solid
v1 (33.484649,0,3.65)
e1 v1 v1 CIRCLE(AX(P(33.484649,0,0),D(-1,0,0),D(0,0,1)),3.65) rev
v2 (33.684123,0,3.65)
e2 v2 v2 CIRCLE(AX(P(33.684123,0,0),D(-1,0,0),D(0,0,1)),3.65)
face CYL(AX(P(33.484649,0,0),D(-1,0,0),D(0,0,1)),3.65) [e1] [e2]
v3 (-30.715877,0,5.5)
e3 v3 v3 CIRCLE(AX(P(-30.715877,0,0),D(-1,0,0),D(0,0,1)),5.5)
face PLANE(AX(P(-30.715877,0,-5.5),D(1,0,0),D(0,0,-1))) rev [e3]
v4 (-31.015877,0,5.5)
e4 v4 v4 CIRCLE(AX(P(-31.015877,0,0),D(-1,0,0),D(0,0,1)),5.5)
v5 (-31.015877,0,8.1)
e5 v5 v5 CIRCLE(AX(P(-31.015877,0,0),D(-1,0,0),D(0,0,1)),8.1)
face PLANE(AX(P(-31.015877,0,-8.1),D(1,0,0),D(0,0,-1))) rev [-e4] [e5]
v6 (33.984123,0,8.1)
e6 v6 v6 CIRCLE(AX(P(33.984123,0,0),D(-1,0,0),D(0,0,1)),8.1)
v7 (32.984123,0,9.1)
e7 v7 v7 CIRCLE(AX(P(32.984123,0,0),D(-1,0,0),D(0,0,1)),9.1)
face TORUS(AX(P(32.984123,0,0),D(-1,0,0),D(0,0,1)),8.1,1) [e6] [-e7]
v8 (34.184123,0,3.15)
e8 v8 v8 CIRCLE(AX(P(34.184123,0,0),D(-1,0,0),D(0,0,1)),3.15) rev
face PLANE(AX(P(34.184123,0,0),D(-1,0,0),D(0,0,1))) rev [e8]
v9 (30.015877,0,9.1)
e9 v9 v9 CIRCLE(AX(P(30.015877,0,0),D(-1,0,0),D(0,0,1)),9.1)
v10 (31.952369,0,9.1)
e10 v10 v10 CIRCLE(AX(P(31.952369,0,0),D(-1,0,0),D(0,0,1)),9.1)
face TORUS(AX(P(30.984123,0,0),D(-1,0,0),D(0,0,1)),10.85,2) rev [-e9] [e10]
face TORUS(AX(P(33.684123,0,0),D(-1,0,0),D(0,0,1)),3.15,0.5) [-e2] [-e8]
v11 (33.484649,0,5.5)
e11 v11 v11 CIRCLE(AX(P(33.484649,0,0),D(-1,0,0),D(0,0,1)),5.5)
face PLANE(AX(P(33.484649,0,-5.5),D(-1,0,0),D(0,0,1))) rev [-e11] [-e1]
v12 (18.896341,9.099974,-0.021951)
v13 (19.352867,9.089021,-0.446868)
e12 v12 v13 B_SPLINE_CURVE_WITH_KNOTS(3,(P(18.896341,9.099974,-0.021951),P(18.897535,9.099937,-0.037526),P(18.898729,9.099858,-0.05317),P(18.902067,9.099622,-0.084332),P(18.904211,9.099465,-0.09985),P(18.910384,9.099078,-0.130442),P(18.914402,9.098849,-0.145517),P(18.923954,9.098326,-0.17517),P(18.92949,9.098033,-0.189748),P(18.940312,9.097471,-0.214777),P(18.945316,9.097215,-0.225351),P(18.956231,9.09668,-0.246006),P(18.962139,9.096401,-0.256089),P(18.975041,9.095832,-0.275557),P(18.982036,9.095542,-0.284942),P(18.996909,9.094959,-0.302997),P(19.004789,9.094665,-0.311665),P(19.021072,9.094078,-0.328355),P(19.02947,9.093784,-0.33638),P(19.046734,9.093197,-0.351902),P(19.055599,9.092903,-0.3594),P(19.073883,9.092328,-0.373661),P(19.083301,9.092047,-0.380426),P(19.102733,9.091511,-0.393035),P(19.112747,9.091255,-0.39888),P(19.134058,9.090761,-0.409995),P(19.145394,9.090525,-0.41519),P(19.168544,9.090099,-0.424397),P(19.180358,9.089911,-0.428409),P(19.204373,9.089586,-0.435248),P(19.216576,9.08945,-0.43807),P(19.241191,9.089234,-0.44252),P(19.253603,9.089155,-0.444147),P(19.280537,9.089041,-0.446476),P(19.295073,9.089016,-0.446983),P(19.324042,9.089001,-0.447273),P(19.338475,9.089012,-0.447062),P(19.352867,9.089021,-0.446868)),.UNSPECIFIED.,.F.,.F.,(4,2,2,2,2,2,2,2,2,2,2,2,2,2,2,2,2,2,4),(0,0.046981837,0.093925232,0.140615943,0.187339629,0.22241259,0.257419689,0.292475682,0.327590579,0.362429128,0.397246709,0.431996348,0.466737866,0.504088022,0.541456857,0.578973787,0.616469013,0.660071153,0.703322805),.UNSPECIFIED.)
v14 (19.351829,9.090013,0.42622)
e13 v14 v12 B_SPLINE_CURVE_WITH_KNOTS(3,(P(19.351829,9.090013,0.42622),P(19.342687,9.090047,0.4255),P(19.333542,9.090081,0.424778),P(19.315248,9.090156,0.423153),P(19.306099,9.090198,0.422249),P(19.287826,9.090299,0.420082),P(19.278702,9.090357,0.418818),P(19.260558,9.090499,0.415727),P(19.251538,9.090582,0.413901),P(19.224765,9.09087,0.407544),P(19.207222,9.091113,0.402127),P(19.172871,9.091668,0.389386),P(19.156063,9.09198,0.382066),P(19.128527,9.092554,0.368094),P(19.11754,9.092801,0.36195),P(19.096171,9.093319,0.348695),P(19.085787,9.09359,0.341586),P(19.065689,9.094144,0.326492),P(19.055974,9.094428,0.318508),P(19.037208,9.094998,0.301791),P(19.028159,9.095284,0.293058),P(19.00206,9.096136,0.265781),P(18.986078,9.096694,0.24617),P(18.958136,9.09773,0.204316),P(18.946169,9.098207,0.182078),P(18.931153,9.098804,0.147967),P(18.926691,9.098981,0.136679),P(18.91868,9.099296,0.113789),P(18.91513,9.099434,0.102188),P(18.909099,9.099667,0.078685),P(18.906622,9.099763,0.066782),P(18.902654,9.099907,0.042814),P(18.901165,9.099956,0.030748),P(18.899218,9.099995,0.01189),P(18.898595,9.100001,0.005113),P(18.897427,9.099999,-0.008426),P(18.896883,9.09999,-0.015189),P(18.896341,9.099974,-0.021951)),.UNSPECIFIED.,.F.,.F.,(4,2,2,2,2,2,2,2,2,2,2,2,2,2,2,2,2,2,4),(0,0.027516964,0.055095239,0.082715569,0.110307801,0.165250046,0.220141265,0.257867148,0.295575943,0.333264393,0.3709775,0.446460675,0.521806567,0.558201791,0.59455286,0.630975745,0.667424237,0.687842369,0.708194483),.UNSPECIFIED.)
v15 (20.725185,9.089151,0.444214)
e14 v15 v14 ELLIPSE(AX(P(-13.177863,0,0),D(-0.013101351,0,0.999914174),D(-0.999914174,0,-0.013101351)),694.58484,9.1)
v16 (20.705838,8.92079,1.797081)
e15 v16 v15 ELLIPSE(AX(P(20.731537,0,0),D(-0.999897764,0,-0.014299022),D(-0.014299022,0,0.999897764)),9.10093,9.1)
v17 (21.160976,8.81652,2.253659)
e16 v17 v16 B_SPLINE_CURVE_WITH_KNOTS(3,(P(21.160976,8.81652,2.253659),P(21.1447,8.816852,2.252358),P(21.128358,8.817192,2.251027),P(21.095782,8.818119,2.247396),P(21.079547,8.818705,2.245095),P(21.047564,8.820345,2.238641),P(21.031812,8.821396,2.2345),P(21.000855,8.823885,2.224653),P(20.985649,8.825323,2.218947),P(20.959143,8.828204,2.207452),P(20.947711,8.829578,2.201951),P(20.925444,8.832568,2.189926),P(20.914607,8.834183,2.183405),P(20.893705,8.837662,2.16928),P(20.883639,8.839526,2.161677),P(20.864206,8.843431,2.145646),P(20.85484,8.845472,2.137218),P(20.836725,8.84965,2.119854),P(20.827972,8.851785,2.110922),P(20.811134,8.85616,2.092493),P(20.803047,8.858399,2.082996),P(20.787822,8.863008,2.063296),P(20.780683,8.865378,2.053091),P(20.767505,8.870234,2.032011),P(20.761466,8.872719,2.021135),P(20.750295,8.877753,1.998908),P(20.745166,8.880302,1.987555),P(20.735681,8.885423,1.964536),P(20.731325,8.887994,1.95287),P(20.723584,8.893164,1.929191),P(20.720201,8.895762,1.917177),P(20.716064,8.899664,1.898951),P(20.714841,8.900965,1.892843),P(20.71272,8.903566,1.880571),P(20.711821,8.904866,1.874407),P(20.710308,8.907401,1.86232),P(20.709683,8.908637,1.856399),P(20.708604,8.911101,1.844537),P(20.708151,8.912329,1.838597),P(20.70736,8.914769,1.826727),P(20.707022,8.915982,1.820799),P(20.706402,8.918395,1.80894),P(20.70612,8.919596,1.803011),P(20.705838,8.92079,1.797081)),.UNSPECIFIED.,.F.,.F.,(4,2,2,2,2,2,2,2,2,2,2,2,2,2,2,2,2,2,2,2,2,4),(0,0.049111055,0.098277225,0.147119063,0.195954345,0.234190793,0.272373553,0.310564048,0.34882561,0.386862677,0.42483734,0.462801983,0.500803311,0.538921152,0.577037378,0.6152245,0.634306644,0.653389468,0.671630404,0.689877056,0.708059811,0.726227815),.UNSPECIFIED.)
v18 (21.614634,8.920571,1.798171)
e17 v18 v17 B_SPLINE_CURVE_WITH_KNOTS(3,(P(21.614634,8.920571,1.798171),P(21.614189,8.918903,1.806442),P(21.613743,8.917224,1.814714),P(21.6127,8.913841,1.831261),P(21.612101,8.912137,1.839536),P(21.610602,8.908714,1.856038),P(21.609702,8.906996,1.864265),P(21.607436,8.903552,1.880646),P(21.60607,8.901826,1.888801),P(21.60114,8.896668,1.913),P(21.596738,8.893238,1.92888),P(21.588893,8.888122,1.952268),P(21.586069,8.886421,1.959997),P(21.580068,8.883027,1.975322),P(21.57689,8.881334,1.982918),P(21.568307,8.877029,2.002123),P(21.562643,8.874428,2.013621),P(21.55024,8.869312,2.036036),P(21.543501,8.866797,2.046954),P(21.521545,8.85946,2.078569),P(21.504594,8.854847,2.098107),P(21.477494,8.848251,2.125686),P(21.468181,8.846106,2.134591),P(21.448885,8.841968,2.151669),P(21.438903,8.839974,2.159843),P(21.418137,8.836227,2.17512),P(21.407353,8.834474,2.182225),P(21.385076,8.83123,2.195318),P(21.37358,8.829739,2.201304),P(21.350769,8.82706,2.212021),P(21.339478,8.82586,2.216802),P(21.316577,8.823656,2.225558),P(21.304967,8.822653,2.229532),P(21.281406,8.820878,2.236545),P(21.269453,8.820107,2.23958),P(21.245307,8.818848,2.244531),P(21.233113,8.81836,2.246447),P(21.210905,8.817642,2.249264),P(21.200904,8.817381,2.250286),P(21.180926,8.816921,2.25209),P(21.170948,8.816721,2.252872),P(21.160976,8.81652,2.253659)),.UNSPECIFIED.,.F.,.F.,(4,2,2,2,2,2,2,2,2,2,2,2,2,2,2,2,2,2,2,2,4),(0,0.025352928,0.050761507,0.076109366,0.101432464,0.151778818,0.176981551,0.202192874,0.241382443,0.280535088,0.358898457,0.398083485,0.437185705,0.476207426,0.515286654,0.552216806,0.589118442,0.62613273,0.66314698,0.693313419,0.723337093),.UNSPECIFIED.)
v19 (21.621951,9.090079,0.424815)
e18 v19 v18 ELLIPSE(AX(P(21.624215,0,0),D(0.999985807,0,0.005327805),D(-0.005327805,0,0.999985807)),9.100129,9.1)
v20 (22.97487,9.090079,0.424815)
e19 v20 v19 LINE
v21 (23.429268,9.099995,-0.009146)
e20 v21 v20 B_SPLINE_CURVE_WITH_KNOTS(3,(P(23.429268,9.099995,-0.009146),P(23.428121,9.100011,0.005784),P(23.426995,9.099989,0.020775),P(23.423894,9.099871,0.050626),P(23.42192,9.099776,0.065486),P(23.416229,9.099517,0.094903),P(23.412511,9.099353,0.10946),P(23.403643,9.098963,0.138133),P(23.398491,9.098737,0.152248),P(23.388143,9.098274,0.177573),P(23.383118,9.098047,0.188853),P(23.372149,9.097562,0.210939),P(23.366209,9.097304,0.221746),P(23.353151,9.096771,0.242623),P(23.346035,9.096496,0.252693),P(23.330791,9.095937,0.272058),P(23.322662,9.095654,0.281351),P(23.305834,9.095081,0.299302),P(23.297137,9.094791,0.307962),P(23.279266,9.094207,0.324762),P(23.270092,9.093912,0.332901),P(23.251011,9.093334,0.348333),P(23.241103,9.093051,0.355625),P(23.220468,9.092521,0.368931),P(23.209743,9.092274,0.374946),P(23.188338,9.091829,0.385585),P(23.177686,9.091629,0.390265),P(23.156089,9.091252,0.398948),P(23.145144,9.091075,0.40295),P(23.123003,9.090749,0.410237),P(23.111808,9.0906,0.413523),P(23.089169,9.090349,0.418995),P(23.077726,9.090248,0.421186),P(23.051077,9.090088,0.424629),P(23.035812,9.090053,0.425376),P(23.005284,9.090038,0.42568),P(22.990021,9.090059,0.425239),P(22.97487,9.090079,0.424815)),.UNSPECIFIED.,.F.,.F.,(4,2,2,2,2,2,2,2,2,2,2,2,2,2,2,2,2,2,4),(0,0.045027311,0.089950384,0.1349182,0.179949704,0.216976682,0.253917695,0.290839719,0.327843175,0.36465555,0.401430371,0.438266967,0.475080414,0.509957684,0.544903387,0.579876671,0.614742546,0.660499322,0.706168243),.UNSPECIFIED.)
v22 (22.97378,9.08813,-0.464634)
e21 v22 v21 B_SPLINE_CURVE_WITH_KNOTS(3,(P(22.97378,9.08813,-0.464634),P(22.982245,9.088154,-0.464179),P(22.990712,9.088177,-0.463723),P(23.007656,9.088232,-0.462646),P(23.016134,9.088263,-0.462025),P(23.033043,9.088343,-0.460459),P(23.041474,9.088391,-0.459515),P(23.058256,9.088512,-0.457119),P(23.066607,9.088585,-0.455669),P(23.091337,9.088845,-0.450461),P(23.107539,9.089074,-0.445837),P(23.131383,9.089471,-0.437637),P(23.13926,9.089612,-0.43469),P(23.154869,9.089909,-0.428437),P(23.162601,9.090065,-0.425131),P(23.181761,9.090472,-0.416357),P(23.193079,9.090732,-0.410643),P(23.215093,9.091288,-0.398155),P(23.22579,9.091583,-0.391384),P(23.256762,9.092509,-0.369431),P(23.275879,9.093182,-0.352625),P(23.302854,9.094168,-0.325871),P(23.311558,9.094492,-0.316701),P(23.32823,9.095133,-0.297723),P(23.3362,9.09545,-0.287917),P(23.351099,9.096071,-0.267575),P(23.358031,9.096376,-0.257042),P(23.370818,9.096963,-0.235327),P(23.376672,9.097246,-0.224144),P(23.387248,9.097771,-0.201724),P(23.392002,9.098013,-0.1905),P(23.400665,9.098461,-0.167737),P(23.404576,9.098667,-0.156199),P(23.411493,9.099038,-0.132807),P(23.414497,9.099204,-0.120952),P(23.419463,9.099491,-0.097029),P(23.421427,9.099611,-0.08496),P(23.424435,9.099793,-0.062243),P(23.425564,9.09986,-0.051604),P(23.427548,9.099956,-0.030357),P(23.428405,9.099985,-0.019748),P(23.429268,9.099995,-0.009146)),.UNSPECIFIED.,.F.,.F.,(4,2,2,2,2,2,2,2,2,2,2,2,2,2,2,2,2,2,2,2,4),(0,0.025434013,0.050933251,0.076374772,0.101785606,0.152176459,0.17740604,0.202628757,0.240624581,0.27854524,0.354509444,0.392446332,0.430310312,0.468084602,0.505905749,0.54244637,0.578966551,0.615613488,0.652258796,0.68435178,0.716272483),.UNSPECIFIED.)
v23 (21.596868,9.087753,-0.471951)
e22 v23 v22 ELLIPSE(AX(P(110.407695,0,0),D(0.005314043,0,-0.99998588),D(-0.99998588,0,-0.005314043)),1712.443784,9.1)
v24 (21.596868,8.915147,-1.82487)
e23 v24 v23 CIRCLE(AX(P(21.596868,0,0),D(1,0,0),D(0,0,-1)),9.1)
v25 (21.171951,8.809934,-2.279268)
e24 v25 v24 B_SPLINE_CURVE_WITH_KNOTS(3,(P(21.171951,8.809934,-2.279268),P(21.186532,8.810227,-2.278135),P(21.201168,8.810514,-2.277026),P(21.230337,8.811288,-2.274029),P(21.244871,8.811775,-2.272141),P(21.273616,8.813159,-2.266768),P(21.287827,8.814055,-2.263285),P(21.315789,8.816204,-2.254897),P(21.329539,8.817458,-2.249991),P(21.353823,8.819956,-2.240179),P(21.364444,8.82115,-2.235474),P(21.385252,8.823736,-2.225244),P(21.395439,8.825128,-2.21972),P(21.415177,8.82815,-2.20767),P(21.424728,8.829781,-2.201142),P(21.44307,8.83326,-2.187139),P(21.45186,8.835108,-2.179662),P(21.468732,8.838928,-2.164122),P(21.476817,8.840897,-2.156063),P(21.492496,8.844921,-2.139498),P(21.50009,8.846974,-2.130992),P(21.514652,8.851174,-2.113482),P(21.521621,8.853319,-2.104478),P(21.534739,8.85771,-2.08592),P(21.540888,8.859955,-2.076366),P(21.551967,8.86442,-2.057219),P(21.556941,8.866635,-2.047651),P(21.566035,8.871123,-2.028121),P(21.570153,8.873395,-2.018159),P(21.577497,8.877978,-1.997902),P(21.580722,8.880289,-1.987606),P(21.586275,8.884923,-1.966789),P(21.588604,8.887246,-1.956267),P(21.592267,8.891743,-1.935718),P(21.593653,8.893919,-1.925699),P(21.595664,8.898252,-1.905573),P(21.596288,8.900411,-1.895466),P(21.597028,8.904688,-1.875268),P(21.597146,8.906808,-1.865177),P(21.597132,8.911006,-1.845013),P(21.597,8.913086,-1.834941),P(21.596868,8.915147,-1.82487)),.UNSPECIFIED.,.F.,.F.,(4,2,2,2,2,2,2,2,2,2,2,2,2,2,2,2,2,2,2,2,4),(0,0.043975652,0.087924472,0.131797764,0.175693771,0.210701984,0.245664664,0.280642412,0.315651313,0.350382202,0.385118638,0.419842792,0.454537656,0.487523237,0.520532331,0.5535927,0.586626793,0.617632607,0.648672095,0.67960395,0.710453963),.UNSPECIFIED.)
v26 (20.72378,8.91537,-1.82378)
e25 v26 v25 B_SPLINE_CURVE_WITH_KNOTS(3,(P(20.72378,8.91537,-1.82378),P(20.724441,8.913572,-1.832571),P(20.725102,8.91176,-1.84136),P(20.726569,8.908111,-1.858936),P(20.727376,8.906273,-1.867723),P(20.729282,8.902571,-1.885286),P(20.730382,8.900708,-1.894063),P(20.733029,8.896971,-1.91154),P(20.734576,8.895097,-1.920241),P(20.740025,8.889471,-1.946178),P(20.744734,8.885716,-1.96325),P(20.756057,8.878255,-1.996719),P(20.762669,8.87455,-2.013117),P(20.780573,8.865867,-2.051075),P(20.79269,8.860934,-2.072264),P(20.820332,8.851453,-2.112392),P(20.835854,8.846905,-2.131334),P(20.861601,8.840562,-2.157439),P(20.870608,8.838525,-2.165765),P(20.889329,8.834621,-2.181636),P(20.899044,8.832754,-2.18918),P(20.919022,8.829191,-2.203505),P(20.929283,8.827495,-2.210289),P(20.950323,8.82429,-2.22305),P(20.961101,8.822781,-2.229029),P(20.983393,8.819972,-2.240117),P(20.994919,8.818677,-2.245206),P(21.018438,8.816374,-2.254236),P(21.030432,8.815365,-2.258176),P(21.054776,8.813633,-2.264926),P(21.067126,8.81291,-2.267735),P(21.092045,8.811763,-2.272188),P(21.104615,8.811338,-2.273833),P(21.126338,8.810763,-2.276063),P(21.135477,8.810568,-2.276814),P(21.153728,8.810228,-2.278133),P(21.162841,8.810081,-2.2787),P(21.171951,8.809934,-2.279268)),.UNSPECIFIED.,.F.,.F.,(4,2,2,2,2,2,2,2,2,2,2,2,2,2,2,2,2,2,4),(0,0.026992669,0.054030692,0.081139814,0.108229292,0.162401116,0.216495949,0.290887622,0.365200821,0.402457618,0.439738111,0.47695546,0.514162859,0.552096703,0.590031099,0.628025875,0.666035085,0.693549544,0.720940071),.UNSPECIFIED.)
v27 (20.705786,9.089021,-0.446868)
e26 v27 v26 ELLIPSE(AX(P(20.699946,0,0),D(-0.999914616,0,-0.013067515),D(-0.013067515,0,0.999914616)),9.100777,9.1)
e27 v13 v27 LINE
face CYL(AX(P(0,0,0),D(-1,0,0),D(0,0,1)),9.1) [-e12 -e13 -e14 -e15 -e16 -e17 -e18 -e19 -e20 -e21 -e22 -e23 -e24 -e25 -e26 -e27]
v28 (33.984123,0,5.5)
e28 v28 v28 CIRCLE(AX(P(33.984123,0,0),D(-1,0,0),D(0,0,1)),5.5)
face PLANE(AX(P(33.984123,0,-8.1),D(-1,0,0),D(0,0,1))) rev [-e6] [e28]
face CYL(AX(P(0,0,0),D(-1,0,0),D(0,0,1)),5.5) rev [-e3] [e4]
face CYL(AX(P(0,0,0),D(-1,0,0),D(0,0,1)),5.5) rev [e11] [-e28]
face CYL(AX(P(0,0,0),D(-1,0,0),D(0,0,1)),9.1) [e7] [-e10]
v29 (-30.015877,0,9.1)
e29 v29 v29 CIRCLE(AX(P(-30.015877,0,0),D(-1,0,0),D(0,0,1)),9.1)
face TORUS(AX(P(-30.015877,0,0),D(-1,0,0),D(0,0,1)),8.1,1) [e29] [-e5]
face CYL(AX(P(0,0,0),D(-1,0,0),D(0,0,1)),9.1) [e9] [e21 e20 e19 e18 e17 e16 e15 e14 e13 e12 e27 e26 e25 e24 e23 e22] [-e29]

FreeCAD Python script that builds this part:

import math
import FreeCAD as App
import Part
import Sketcher
from FreeCAD import Vector


def edges_at(feature, points):
    """Names of the edges that pass closest to the given points."""
    edges = feature.Shape.Edges
    near = lambda p: min(range(len(edges)), key=lambda i: edges[i].distToShape(Part.Vertex(*p))[0])
    return sorted({f"Edge{near(p) + 1}" for p in points})

doc = App.newDocument("Part")
body = doc.addObject("PartDesign::Body", "Body")

# Sketch on XZ plane
sketch1 = body.newObject("Sketcher::SketchObject", "Sketch")
sketch1.AttachmentSupport = (doc.getObject("XZ_Plane"), [""])
sketch1.MapMode = "FlatFace"
sketch1.addGeometry([
    Part.LineSegment(Vector(30.02, -9.1, 0), Vector(-30.02, -9.1, 0)),  # 0
    Part.ArcOfCircle(Part.Circle(Vector(-30.02, -8.1, 0), Vector(0, 0, 1), 1), math.radians(-180), math.radians(-90)),  # 1
    Part.LineSegment(Vector(-31.02, -8.1, 0), Vector(-31.02, -5.5, 0)),  # 2
    Part.LineSegment(Vector(-31.02, -5.5, 0), Vector(-30.72, -5.5, 0)),  # 3
    Part.LineSegment(Vector(-30.72, -5.5, 0), Vector(-30.72, 0, 0)),  # 4
    Part.LineSegment(Vector(-30.72, 0, 0), Vector(33.48, 0, 0)),  # 5
    Part.LineSegment(Vector(33.48, 0, 0), Vector(33.48, -5.5, 0)),  # 6
    Part.LineSegment(Vector(33.48, -5.5, 0), Vector(33.98, -5.5, 0)),  # 7
    Part.LineSegment(Vector(33.98, -5.5, 0), Vector(33.98, -8.1, 0)),  # 8
    Part.ArcOfCircle(Part.Circle(Vector(32.98, -8.1, 0), Vector(0, 0, 1), 1), math.radians(-90), math.radians(0)),  # 9
    Part.LineSegment(Vector(32.98, -9.1, 0), Vector(31.95, -9.1, 0)),  # 10
    Part.ArcOfCircle(Part.Circle(Vector(30.98, -10.85, 0), Vector(0, 0, 1), 2), math.radians(61), math.radians(119)),  # 11
], False)
sketch1.addConstraint([
    Sketcher.Constraint("Tangent", 0, 2, 1, 2),
    Sketcher.Constraint("Tangent", 1, 1, 2, 1),
    Sketcher.Constraint("Coincident", 2, 2, 3, 1),
    Sketcher.Constraint("Coincident", 3, 2, 4, 1),
    Sketcher.Constraint("Coincident", 4, 2, 5, 1),
    Sketcher.Constraint("Coincident", 5, 2, 6, 1),
    Sketcher.Constraint("Coincident", 6, 2, 7, 1),
    Sketcher.Constraint("Coincident", 7, 2, 8, 1),
    Sketcher.Constraint("Tangent", 8, 2, 9, 2),
    Sketcher.Constraint("Tangent", 9, 1, 10, 1),
    Sketcher.Constraint("Coincident", 10, 2, 11, 1),
    Sketcher.Constraint("Coincident", 11, 2, 0, 1),
    Sketcher.Constraint("Horizontal", 0),
    Sketcher.Constraint("Vertical", 2),
    Sketcher.Constraint("Horizontal", 3),
    Sketcher.Constraint("Vertical", 4),
    Sketcher.Constraint("Horizontal", 5),
    Sketcher.Constraint("Vertical", 6),
    Sketcher.Constraint("Horizontal", 7),
    Sketcher.Constraint("Vertical", 8),
    Sketcher.Constraint("Horizontal", 10),
    Sketcher.Constraint("Equal", 1, 9),
    Sketcher.Constraint("PointOnObject", 4, 2, -1),
    Sketcher.Constraint("Horizontal", 1, 3, 9, 3),
    Sketcher.Constraint("Horizontal", 3, 2, 6, 2),
    Sketcher.Constraint("Radius", 1, 1.0),
    Sketcher.Constraint("Radius", 11, 2.0),
    Sketcher.Constraint("DistanceX", 3, 1, 3, 2, 0.3),
    Sketcher.Constraint("DistanceY", 2, 1, 2, 2, 2.6),
    Sketcher.Constraint("DistanceY", 4, 1, 4, 2, 5.5),
    Sketcher.Constraint("DistanceX", 1, 3, 9, 3, 63.0),
    Sketcher.Constraint("DistanceX", 11, 3, 9, 3, 2.0),
    Sketcher.Constraint("DistanceY", 11, 3, -1, 1, 10.85),
    Sketcher.Constraint("DistanceX", 5, 1, 5, 2, 64.200526),
    Sketcher.Constraint("DistanceX", -1, 1, 5, 2, 33.484649),
])
revolution = body.newObject("PartDesign::Revolution", "Revolution")
revolution.Profile = sketch1
revolution.ReferenceAxis = (sketch1, ["H_Axis"])
revolution.Angle = 360

# Sketch on XZ plane
sketch2 = body.newObject("Sketcher::SketchObject", "Sketch001")
sketch2.AttachmentSupport = (doc.getObject("XZ_Plane"), [""])
sketch2.MapMode = "FlatFace"
sketch2.addGeometry([
    Part.LineSegment(Vector(33.5, -3.6, 0), Vector(33.5, 0, 0)),
    Part.LineSegment(Vector(33.5, 0, 0), Vector(34.2, 0, 0)),
    Part.LineSegment(Vector(34.2, 0, 0), Vector(34.2, -3.6, 0)),
    Part.LineSegment(Vector(34.2, -3.6, 0), Vector(33.5, -3.6, 0)),
], False)
sketch2.addConstraint([
    Sketcher.Constraint("Coincident", 0, 2, 1, 1),
    Sketcher.Constraint("Coincident", 1, 2, 2, 1),
    Sketcher.Constraint("Coincident", 2, 2, 3, 1),
    Sketcher.Constraint("Coincident", 3, 2, 0, 1),
    Sketcher.Constraint("Vertical", 0),
    Sketcher.Constraint("Horizontal", 1),
    Sketcher.Constraint("Vertical", 2),
    Sketcher.Constraint("Horizontal", 3),
    Sketcher.Constraint("PointOnObject", 0, 2, -1),
    Sketcher.Constraint("DistanceY", 0, 1, 0, 2, 3.65),
    Sketcher.Constraint("DistanceX", 1, 1, 1, 2, 0.699474),
    Sketcher.Constraint("DistanceX", -1, 1, 0, 2, 33.484649),
])
revolution2 = body.newObject("PartDesign::Revolution", "Revolution001")
revolution2.Profile = sketch2
revolution2.ReferenceAxis = (sketch2, ["H_Axis"])
revolution2.Angle = 360
doc.recompute()

fillet = body.newObject("PartDesign::Fillet", "Fillet")
fillet.Base = (revolution2, edges_at(revolution2, [(34.184, 0, 3.65)]))
fillet.Radius = 0.5

doc.recompute()
